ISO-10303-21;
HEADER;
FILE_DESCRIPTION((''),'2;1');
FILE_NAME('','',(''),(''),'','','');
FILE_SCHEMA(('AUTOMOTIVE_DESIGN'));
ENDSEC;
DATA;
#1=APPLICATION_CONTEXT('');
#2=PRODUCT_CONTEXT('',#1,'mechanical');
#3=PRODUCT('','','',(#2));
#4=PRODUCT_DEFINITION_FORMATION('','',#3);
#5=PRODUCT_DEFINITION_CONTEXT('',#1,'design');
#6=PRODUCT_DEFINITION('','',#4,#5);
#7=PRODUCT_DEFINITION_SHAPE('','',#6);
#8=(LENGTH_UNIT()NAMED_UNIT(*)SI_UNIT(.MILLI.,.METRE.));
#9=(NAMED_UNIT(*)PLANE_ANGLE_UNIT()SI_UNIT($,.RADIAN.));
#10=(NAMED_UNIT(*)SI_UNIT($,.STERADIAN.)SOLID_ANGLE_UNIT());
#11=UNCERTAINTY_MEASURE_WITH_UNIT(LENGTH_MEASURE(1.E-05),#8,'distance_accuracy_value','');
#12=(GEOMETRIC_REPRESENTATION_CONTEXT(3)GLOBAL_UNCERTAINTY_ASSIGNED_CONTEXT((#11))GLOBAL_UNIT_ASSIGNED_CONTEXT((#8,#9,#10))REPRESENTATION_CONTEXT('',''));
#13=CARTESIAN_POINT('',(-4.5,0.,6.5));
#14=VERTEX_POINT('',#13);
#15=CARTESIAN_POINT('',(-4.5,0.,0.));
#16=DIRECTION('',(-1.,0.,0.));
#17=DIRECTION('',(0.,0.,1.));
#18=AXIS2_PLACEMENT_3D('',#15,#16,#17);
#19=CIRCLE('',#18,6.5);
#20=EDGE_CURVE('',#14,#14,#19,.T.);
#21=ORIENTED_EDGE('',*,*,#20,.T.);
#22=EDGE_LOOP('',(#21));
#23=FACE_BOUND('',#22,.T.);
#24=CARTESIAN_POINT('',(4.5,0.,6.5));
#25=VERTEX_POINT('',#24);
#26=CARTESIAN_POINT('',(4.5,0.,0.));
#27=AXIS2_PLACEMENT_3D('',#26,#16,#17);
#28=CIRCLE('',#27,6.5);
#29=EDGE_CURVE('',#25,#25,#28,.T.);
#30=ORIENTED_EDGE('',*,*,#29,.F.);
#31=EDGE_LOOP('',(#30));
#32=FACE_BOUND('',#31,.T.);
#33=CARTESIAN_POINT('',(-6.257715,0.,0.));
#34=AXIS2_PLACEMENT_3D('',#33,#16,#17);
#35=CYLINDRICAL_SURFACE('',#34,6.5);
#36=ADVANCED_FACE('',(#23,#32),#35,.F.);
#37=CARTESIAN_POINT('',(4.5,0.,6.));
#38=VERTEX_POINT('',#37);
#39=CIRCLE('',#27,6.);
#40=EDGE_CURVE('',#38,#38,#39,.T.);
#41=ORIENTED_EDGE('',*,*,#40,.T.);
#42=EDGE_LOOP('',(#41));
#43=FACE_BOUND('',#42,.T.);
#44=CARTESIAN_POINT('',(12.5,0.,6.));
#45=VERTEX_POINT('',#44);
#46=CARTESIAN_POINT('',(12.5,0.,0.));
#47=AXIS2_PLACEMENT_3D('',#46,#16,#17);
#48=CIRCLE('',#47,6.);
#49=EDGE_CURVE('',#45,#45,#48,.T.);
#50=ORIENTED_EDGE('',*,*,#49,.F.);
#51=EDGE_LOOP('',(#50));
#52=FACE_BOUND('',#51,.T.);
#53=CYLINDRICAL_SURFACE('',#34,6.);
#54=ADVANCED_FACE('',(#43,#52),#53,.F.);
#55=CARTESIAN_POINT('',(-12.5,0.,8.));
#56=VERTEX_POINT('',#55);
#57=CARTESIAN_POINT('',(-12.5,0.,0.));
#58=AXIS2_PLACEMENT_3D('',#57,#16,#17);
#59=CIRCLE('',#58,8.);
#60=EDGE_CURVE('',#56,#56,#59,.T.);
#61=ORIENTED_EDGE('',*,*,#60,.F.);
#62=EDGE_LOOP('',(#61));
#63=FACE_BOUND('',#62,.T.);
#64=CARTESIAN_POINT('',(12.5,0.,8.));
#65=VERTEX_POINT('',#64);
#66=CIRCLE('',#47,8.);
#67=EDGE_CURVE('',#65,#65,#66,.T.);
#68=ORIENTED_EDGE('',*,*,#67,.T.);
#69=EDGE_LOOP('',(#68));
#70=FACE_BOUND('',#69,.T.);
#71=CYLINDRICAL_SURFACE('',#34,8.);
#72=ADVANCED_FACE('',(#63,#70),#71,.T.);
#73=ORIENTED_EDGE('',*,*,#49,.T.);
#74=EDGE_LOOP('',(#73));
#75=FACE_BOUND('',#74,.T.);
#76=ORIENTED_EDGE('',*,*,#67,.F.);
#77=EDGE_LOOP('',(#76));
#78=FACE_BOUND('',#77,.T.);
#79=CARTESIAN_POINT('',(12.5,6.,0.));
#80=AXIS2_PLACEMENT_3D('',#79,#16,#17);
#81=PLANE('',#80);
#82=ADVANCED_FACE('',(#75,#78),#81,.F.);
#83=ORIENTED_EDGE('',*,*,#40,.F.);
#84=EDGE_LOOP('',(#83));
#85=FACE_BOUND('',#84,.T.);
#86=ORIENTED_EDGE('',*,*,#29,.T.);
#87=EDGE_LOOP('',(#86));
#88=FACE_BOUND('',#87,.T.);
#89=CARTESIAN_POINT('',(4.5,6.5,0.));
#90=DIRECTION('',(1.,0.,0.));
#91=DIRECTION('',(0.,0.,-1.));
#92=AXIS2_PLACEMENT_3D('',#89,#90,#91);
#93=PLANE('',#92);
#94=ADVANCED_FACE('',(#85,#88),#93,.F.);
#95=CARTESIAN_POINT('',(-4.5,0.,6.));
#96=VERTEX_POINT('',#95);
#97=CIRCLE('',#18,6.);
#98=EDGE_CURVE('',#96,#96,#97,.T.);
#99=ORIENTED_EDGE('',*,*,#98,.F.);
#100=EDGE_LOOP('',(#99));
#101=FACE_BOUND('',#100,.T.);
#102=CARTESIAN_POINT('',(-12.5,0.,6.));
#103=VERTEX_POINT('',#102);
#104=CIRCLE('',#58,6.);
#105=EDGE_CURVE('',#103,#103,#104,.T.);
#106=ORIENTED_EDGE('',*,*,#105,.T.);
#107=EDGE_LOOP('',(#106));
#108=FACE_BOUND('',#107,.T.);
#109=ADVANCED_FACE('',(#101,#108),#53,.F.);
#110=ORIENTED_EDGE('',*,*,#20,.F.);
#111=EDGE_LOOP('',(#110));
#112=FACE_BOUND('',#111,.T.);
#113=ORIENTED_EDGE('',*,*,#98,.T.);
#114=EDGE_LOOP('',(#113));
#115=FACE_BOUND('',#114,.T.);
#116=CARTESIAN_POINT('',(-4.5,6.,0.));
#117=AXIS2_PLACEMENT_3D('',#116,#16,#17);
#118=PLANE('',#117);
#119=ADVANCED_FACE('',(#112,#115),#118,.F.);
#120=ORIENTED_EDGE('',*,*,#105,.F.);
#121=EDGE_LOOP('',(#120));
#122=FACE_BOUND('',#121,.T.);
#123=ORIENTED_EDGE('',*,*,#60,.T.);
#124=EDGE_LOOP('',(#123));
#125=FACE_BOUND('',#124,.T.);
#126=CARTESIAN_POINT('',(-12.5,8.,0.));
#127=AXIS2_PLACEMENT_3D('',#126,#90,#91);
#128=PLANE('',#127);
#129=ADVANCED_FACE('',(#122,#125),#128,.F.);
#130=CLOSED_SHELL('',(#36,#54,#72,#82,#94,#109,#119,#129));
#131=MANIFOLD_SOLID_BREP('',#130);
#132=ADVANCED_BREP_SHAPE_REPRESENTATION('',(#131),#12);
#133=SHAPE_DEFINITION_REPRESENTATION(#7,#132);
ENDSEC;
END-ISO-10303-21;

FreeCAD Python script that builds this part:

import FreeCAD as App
import Part
import Sketcher

V = App.Vector


def add_polygon(sketch, points):
    """Adds a closed chain of lines whose ends are joined by coincident constraints."""
    first, n = sketch.GeometryCount, len(points)
    for a, b in zip(points, points[1:] + points[:1]):
        sketch.addGeometry(Part.LineSegment(App.Vector(*a, 0), App.Vector(*b, 0)), False)
    for i in range(n):
        sketch.addConstraint(Sketcher.Constraint("Coincident", first + i, 2, first + (i + 1) % n, 1))

doc = App.newDocument("Part")
body = doc.addObject("PartDesign::Body", "Body")

# Sketch on XY plane
sketch1 = body.newObject("Sketcher::SketchObject", "Sketch")
sketch1.AttachmentSupport = (doc.getObject("XY_Plane"), [""])
sketch1.MapMode = "FlatFace"
add_polygon(sketch1, [(-12.5, 6), (-4.5, 6), (-4.5, 6.5), (4.5, 6.5), (4.5, 6), (12.5, 6), (12.5, 8), (-12.5, 8)])  # lines 0-7
sketch1.addConstraint(Sketcher.Constraint("Horizontal", 0))
sketch1.addConstraint(Sketcher.Constraint("Vertical", 1))
sketch1.addConstraint(Sketcher.Constraint("Horizontal", 2))
sketch1.addConstraint(Sketcher.Constraint("Vertical", 3))
sketch1.addConstraint(Sketcher.Constraint("Horizontal", 4))
sketch1.addConstraint(Sketcher.Constraint("Vertical", 5))
sketch1.addConstraint(Sketcher.Constraint("Horizontal", 6))
sketch1.addConstraint(Sketcher.Constraint("Vertical", 7))
sketch1.addConstraint(Sketcher.Constraint("Symmetric", 0, 2, 3, 2, -2))
sketch1.addConstraint(Sketcher.Constraint("Equal", 0, 4))
sketch1.addConstraint(Sketcher.Constraint("DistanceX", 0, 1, 0, 2, 8.0))
sketch1.addConstraint(Sketcher.Constraint("DistanceX", 2, 1, 2, 2, 9.0))
sketch1.addConstraint(Sketcher.Constraint("DistanceY", 5, 1, 5, 2, 2.0))
sketch1.addConstraint(Sketcher.Constraint("DistanceY", 1, 1, 1, 2, 0.5))
sketch1.addConstraint(Sketcher.Constraint("DistanceY", -1, 1, 0, 2, 6.0))
revolution = body.newObject("PartDesign::Revolution", "Revolution")
revolution.Profile = sketch1
revolution.ReferenceAxis = (sketch1, ["H_Axis"])
revolution.Angle = 360

doc.recompute()
